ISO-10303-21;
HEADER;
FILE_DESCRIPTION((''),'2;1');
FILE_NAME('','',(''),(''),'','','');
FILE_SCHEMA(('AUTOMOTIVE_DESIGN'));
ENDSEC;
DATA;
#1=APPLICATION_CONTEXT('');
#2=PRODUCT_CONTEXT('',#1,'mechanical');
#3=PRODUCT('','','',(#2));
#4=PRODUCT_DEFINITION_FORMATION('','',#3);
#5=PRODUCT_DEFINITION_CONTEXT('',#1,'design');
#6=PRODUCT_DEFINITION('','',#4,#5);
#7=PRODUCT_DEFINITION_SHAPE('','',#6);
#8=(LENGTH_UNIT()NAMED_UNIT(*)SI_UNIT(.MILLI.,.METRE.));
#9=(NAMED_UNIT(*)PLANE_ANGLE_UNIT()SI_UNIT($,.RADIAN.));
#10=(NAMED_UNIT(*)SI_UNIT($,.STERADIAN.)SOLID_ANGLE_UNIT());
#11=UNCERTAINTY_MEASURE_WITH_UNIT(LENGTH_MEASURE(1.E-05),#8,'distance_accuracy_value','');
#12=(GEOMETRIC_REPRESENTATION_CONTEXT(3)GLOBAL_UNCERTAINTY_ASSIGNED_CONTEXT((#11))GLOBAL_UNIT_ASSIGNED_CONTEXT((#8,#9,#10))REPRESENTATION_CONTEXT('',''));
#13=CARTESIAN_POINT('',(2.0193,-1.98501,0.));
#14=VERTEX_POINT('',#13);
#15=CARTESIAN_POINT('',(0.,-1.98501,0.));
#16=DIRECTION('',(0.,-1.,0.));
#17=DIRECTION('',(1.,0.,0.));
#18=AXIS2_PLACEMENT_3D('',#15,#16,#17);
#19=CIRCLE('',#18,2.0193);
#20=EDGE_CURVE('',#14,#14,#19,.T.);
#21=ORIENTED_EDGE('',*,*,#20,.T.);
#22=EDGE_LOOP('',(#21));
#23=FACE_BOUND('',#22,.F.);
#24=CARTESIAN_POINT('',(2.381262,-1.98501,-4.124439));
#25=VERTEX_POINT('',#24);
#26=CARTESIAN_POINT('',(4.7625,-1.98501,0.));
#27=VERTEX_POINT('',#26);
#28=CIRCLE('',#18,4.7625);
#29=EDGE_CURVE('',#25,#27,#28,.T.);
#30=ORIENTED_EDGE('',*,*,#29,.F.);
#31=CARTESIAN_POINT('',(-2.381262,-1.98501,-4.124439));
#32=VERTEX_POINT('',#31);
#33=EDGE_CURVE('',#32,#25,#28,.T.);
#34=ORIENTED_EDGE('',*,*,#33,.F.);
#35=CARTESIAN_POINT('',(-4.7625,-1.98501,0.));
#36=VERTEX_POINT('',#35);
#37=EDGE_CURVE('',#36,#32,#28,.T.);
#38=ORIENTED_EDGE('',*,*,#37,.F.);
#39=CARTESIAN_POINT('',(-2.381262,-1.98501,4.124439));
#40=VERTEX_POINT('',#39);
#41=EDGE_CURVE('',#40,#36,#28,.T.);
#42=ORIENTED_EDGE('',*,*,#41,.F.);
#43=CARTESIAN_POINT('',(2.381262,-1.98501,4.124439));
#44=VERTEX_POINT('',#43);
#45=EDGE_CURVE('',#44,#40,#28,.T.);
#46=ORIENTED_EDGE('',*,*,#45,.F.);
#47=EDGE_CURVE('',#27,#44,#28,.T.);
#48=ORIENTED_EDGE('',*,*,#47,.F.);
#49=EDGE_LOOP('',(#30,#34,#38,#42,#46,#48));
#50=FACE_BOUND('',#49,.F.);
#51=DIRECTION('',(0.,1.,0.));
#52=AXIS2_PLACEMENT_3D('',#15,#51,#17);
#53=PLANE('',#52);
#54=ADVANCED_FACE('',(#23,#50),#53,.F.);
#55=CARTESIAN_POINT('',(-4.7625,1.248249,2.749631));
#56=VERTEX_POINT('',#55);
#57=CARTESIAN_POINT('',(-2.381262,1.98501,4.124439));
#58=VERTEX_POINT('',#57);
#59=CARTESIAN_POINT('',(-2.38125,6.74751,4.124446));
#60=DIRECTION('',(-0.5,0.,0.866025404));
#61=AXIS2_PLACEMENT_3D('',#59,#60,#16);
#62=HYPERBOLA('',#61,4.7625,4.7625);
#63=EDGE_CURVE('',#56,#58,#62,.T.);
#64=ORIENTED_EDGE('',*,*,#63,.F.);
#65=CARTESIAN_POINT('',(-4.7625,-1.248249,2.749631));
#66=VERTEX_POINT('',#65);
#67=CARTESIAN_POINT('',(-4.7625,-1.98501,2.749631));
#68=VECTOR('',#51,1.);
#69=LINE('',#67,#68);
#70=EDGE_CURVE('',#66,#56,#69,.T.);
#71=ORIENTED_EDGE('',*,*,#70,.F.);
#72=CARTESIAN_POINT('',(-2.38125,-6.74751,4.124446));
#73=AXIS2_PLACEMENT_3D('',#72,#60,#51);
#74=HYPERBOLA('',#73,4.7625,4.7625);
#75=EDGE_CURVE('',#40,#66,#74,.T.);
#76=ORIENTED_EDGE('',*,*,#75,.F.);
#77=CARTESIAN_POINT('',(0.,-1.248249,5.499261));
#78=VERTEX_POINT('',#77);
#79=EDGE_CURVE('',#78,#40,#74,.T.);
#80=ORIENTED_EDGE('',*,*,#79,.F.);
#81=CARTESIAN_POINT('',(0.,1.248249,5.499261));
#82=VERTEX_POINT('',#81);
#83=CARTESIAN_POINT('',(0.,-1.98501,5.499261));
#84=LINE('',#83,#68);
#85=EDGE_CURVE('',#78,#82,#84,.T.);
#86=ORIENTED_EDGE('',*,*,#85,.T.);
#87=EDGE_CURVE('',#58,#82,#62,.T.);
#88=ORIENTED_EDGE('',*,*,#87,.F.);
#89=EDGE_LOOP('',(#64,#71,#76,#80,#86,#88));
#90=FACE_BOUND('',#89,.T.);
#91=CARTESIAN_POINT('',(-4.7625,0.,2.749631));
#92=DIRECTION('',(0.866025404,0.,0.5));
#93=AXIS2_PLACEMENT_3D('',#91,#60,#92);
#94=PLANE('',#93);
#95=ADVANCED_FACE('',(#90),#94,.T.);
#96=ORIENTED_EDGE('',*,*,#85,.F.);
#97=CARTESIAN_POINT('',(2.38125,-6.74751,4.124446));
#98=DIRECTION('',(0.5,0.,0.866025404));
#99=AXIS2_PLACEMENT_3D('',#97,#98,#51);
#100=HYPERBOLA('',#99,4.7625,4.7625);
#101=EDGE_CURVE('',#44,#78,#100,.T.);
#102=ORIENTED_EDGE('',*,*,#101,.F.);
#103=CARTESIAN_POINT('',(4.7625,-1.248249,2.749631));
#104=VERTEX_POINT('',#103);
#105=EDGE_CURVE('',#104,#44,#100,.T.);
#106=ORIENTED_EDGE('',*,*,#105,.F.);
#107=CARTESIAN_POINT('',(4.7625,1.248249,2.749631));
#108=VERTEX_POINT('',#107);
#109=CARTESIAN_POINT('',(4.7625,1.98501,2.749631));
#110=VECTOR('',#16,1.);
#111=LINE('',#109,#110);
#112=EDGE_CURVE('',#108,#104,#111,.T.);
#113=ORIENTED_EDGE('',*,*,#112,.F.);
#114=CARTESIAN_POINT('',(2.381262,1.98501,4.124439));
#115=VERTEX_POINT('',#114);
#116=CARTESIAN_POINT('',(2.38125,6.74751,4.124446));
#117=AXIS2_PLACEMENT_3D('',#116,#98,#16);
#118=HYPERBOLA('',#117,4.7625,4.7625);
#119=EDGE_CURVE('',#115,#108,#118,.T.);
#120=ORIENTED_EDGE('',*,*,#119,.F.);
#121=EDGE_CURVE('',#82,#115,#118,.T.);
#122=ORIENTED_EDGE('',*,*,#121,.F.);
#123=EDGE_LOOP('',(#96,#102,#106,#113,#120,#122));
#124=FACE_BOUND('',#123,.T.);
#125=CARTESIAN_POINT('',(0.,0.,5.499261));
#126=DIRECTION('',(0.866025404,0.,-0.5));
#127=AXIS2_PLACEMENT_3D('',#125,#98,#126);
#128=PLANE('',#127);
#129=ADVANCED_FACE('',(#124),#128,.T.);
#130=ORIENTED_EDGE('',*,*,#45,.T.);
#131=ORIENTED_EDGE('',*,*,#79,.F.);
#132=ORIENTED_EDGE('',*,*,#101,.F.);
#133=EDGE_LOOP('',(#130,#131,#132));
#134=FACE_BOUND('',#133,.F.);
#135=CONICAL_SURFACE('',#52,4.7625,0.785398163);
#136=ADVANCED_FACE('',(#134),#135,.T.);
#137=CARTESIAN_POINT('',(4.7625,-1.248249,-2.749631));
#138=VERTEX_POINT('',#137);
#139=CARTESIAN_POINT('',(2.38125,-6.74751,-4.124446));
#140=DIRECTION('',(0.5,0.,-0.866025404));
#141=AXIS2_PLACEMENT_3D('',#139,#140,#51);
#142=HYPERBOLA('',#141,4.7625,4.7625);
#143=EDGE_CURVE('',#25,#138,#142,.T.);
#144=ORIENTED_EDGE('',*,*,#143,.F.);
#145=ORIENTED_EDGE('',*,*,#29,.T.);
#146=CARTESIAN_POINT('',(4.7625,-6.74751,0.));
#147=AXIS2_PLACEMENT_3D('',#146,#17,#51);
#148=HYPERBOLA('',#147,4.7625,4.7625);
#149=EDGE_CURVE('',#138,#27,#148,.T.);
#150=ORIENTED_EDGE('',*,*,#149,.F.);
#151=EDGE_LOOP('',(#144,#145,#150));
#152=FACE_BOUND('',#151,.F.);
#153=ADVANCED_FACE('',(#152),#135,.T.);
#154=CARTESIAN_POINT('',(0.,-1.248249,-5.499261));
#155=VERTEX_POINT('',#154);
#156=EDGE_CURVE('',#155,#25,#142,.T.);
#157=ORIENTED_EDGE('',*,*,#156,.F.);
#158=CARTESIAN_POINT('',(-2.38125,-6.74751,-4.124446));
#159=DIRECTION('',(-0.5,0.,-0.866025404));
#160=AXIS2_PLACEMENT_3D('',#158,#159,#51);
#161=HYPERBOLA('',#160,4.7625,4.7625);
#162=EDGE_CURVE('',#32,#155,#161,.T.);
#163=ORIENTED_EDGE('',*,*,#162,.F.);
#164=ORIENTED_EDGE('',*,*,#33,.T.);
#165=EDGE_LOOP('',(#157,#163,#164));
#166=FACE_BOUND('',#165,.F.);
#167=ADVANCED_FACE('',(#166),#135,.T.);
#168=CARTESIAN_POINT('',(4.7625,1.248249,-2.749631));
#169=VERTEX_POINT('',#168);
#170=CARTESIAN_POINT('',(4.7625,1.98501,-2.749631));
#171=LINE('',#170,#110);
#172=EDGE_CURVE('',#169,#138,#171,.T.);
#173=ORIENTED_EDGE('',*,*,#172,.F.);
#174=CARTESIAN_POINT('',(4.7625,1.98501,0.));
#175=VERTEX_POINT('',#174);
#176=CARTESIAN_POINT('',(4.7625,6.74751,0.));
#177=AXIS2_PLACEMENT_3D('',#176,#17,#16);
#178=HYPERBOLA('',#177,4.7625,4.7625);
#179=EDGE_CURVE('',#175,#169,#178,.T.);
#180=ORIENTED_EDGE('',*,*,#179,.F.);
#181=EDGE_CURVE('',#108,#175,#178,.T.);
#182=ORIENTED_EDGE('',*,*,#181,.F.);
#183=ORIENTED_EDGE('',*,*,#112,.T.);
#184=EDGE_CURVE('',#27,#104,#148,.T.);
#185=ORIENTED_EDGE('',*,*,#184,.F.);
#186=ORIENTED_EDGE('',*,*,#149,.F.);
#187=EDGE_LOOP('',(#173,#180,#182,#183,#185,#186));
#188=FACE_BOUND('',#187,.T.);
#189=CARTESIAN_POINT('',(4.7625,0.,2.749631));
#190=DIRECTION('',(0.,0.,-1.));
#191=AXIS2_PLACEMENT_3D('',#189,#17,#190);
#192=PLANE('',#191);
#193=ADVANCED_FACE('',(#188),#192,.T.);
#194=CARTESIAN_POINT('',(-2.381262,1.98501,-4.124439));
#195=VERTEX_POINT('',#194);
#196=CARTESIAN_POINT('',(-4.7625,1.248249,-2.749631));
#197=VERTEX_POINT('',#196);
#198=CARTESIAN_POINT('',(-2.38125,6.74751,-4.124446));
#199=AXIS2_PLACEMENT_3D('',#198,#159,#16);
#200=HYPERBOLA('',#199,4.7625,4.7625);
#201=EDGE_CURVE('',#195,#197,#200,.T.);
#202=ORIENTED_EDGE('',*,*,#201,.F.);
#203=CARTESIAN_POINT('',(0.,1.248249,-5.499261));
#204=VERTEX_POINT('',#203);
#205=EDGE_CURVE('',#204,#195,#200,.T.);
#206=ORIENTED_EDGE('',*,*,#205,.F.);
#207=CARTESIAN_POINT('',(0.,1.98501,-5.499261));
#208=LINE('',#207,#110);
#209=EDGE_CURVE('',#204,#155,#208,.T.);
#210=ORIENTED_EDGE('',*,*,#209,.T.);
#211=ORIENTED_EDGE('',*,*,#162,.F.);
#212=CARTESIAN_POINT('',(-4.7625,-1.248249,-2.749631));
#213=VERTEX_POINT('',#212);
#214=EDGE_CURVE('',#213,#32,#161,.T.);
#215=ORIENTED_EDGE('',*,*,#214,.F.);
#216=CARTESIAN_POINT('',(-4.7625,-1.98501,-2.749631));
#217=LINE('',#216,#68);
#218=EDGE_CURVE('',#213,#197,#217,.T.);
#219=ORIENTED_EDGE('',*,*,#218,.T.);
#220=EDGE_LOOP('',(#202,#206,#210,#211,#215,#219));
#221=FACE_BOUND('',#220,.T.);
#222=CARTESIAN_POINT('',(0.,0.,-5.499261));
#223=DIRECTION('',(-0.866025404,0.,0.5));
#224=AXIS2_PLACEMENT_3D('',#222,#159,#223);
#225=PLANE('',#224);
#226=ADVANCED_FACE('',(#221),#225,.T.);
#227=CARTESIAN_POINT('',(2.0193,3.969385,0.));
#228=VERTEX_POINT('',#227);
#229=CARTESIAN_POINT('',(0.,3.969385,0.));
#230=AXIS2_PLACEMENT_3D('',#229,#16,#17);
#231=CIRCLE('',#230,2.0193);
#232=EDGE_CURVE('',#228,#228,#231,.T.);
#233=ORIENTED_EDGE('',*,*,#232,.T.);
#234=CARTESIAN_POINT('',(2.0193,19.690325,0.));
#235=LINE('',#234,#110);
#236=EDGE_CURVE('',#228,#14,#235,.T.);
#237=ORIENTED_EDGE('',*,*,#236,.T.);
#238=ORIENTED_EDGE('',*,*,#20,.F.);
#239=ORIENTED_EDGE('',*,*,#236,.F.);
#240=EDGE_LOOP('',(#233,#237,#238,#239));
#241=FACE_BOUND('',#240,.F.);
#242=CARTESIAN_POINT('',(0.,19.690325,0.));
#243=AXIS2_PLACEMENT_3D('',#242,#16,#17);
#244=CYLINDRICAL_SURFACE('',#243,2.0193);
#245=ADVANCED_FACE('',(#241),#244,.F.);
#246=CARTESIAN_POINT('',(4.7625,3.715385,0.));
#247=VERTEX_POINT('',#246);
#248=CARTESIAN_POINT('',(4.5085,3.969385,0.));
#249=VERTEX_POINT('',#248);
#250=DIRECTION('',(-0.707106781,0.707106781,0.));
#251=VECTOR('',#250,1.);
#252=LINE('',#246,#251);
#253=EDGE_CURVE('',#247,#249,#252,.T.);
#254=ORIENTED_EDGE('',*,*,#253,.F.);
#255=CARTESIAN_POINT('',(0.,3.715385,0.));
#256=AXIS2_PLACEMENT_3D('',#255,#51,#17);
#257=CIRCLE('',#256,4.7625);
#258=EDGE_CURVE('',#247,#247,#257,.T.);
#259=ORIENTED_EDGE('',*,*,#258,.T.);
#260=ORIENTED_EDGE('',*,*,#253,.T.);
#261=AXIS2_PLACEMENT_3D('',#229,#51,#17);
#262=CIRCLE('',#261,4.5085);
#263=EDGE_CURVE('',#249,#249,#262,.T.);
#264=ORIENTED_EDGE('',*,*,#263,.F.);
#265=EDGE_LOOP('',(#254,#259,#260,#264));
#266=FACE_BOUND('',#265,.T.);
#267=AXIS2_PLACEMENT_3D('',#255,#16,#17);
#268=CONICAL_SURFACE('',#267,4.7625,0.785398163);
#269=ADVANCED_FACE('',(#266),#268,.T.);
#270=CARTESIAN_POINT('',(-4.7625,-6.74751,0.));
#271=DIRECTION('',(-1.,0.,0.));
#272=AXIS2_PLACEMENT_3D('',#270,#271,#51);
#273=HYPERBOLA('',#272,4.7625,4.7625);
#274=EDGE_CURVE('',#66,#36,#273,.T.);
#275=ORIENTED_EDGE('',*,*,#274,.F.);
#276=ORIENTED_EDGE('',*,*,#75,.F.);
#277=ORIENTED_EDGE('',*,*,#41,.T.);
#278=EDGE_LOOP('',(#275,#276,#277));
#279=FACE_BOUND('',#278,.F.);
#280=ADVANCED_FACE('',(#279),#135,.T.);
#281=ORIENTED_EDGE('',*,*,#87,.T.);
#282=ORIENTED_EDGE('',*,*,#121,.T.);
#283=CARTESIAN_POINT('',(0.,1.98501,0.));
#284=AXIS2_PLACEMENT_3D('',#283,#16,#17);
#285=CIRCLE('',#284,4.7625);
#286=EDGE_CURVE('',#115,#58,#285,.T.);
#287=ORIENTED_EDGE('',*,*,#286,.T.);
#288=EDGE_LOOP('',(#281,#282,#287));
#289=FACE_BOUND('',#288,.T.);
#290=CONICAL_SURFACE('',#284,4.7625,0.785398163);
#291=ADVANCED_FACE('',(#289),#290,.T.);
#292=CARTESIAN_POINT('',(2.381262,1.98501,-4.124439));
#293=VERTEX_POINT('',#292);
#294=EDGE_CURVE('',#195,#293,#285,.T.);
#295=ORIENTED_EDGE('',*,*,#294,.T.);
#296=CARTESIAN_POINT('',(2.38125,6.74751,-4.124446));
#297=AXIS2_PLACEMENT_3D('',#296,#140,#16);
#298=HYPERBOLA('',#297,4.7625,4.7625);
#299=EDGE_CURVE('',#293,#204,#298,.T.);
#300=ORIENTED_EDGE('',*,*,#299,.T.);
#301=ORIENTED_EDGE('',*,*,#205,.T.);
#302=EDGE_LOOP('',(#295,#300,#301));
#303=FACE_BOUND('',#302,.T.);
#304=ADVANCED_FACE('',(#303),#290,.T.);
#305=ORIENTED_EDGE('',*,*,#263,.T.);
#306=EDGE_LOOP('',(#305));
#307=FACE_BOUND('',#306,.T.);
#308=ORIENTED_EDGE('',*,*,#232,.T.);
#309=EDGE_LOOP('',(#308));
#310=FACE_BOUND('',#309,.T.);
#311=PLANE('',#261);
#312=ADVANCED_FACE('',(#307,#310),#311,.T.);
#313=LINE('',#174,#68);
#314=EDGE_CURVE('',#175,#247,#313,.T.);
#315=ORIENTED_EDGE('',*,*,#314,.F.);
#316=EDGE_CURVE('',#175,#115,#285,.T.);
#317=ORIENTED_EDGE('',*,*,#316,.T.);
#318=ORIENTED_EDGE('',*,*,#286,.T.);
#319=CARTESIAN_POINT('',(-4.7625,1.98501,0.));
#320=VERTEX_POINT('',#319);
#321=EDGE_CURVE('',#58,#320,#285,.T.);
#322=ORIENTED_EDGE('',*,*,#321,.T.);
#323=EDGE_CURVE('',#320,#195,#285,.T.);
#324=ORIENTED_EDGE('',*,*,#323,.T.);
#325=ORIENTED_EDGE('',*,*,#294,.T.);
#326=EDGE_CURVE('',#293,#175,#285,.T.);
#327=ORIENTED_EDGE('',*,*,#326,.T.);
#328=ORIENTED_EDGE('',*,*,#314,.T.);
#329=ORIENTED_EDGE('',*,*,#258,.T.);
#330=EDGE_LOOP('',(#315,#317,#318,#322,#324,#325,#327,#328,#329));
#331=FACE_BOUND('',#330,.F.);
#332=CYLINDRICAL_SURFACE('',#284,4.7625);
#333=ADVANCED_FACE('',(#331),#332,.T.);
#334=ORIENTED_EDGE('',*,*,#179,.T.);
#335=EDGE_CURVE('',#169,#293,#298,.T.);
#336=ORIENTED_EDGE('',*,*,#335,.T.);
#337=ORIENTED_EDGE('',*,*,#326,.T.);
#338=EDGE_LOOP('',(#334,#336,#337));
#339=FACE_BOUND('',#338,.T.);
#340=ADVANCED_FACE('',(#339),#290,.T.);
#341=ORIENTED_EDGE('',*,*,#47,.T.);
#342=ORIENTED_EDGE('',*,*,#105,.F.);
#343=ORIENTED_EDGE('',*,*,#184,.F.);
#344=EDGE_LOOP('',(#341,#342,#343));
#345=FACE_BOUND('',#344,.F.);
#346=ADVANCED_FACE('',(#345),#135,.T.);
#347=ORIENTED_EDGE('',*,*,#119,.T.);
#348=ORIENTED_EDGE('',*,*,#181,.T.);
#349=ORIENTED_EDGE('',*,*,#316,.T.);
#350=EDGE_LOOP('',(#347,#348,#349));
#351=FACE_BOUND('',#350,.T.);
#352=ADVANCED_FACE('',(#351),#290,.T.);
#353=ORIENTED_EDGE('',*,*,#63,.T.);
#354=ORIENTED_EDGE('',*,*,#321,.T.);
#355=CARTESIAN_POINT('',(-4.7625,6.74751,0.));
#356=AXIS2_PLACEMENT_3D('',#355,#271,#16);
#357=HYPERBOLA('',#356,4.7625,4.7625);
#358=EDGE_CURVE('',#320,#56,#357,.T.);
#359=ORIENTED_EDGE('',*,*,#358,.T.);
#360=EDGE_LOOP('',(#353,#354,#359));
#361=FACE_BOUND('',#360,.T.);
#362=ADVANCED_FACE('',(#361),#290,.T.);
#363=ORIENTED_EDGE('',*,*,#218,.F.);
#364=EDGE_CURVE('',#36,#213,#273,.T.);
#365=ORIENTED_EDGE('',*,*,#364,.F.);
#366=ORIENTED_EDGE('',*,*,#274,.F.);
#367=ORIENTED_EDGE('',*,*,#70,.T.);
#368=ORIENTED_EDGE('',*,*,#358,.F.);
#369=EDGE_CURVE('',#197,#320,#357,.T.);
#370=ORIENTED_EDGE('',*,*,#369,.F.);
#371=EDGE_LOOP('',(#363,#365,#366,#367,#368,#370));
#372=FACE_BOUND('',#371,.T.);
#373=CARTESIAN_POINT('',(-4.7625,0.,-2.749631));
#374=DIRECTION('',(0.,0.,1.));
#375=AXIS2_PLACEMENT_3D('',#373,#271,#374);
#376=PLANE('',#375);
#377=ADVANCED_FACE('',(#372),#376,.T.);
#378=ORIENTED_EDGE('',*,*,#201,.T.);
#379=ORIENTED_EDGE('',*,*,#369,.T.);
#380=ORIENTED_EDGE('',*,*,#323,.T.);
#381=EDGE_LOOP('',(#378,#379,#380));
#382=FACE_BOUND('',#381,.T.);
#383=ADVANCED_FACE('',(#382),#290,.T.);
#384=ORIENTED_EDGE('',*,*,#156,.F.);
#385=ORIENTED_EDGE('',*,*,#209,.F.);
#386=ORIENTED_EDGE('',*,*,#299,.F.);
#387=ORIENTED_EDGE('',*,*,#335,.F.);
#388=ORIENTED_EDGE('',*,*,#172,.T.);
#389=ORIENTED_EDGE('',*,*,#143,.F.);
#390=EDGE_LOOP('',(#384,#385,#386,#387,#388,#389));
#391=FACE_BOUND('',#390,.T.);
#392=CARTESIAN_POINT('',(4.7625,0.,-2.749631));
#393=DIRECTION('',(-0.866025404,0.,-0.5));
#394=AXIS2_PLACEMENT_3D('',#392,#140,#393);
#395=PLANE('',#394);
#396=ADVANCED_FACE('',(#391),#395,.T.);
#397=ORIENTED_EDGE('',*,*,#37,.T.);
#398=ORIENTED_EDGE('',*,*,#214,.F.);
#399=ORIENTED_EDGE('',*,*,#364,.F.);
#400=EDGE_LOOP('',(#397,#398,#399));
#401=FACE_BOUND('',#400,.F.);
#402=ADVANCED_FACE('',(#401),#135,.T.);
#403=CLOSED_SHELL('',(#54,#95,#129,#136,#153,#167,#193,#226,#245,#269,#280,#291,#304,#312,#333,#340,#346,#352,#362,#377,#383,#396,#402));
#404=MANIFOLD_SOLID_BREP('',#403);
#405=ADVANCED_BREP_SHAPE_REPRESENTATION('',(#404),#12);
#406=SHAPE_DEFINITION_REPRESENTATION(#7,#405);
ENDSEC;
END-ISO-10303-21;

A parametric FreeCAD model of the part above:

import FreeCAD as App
import Part
import Sketcher
from FreeCAD import Vector
Q = App.Units.Quantity


def edges_at(feature, points):
    """Names of the edges that pass closest to the given points."""
    edges = feature.Shape.Edges
    near = lambda p: min(range(len(edges)), key=lambda i: edges[i].distToShape(Part.Vertex(*p))[0])
    return sorted({f"Edge{near(p) + 1}" for p in points})

doc = App.newDocument("Part")
body = doc.addObject("PartDesign::Body", "Body")

sketch1 = body.newObject("Sketcher::SketchObject", "Sketch")
sketch1.AttachmentSupport = (doc.getObject("XZ_Plane"), [""])
sketch1.MapMode = "FlatFace"
sketch1.addGeometry(Part.LineSegment(Vector(0, -5, 0), Vector(-5, -3, 0)), False)
sketch1.addGeometry(Part.LineSegment(Vector(-5, -3, 0), Vector(-5, 3, 0)), False)
sketch1.addGeometry(Part.LineSegment(Vector(-5, 3, 0), Vector(0, 5, 0)), False)
sketch1.addGeometry(Part.LineSegment(Vector(0, 5, 0), Vector(5, 3, 0)), False)
sketch1.addGeometry(Part.LineSegment(Vector(5, 3, 0), Vector(5, -3, 0)), False)
sketch1.addGeometry(Part.LineSegment(Vector(5, -3, 0), Vector(0, -5, 0)), False)
sketch1.addConstraint(Sketcher.Constraint("Coincident", 0, 2, 1, 1))
sketch1.addConstraint(Sketcher.Constraint("Coincident", 1, 2, 2, 1))
sketch1.addConstraint(Sketcher.Constraint("Coincident", 2, 2, 3, 1))
sketch1.addConstraint(Sketcher.Constraint("Coincident", 3, 2, 4, 1))
sketch1.addConstraint(Sketcher.Constraint("Coincident", 4, 2, 5, 1))
sketch1.addConstraint(Sketcher.Constraint("Coincident", 5, 2, 0, 1))
sketch1.addConstraint(Sketcher.Constraint("Vertical", 1))
sketch1.addConstraint(Sketcher.Constraint("Vertical", 4))
sketch1.addConstraint(Sketcher.Constraint("Symmetric", 0, 2, 3, 2, -1, 1))
sketch1.addConstraint(Sketcher.Constraint("Symmetric", 2, 2, 5, 2, -1, 1))
sketch1.addConstraint(Sketcher.Constraint("PointOnObject", 2, 2, -2))
sketch1.addConstraint(Sketcher.Constraint("Parallel", 2, 5))
sketch1.addConstraint(Sketcher.Constraint("Horizontal", 1, 2, 3, 2))
sketch1.addConstraint(Sketcher.Constraint("Angle", 0, Q("150 deg")))
sketch1.addConstraint(Sketcher.Constraint("DistanceX", 0, 2, -1, 1, Q("0.1875 in")))
sketch1.addConstraint(Sketcher.Constraint("DistanceY", 1, 1, 1, 2, 5.499261))
pad1 = body.newObject("PartDesign::Pad", "Pad")
pad1.Profile = sketch1
pad1.Length = Q("0.1563 in")
pad1.Midplane = True

sketch2 = body.newObject("Sketcher::SketchObject", "Sketch001")
sketch2.AttachmentSupport = (doc.getObject("XZ_Plane"), [""])
sketch2.MapMode = "FlatFace"
sketch2.AttachmentOffset = App.Placement(Vector(0, 0, -1.98501), App.Rotation())
sketch2.addGeometry(Part.LineSegment(Vector(-11.2, -12, 0), Vector(-11.2, 12, 0)), False)
sketch2.addGeometry(Part.LineSegment(Vector(-11.2, 12, 0), Vector(11.2, 12, 0)), False)
sketch2.addGeometry(Part.LineSegment(Vector(11.2, 12, 0), Vector(11.2, -12, 0)), False)
sketch2.addGeometry(Part.LineSegment(Vector(11.2, -12, 0), Vector(-11.2, -12, 0)), False)
sketch2.addGeometry(Part.Circle(Vector(0, 0, 0), Vector(0, 0, 1), 4.8), False)
sketch2.addConstraint(Sketcher.Constraint("Coincident", 0, 2, 1, 1))
sketch2.addConstraint(Sketcher.Constraint("Coincident", 1, 2, 2, 1))
sketch2.addConstraint(Sketcher.Constraint("Coincident", 2, 2, 3, 1))
sketch2.addConstraint(Sketcher.Constraint("Coincident", 3, 2, 0, 1))
sketch2.addConstraint(Sketcher.Constraint("Vertical", 0))
sketch2.addConstraint(Sketcher.Constraint("Horizontal", 1))
sketch2.addConstraint(Sketcher.Constraint("Vertical", 2))
sketch2.addConstraint(Sketcher.Constraint("Horizontal", 3))
sketch2.addConstraint(Sketcher.Constraint("Coincident", 4, 3, -1, 1))
sketch2.addConstraint(Sketcher.Constraint("Diameter", 4, Q("0.375 in")))
sketch2.addConstraint(Sketcher.Constraint("DistanceX", 1, 1, 1, 2, 22.481))
sketch2.addConstraint(Sketcher.Constraint("DistanceY", 0, 1, 0, 2, 23.954))
sketch2.addConstraint(Sketcher.Constraint("DistanceX", 0, 2, -1, 1, 11.241))
sketch2.addConstraint(Sketcher.Constraint("DistanceY", -1, 1, 0, 2, 11.977))
pocket1 = body.newObject("PartDesign::Pocket", "Pocket")
pocket1.Profile = sketch2
pocket1.Length = Q("0.1563 in")
pocket1.Reversed = True
pocket1.TaperAngle = 45
doc.recompute()

mirrored = body.newObject("PartDesign::Mirrored", "Mirrored")
mirrored.Originals = [pocket1]
mirrored.MirrorPlane = (doc.getObject("XZ_Plane"), [""])
body.Tip = mirrored

sketch3 = body.newObject("Sketcher::SketchObject", "Sketch002")
sketch3.AttachmentSupport = (doc.getObject("XZ_Plane"), [""])
sketch3.MapMode = "FlatFace"
sketch3.AttachmentOffset = App.Placement(Vector(0, 0, -1.98501), App.Rotation())
sketch3.addGeometry(Part.Circle(Vector(0, 0, 0), Vector(0, 0, 1), 4.8), False)
sketch3.addConstraint(Sketcher.Constraint("Coincident", 0, 3, -1, 1))
sketch3.addConstraint(Sketcher.Constraint("Diameter", 0, Q("0.375 in")))
pad2 = body.newObject("PartDesign::Pad", "Pad001")
pad2.Profile = sketch3
pad2.Length = Q("0.078125 in")
pad2.Reversed = True

sketch4 = body.newObject("Sketcher::SketchObject", "Sketch003")
sketch4.AttachmentSupport = (doc.getObject("XZ_Plane"), [""])
sketch4.MapMode = "FlatFace"
sketch4.AttachmentOffset = App.Placement(Vector(0, 0, -3.969385), App.Rotation())
sketch4.addGeometry(Part.Circle(Vector(0, 0, 0), Vector(0, 0, 1), 2), False)
sketch4.addConstraint(Sketcher.Constraint("Coincident", 0, 3, -1, 1))
sketch4.addConstraint(Sketcher.Constraint("Diameter", 0, Q("0.159 in")))
doc.recompute()
hole = body.newObject("PartDesign::Hole", "Hole")
hole.Profile = sketch4
hole.ThreadType = "None"
hole.Diameter = Q("0.159 in")
hole.DepthType = "ThroughAll"
hole.Reversed = True
doc.recompute()

chamfer = body.newObject("PartDesign::Chamfer", "Chamfer")
chamfer.Base = (hole, edges_at(hole, [(-4.763, 3.969, 0)]))
chamfer.Size = Q("0.01 in")

doc.recompute()
